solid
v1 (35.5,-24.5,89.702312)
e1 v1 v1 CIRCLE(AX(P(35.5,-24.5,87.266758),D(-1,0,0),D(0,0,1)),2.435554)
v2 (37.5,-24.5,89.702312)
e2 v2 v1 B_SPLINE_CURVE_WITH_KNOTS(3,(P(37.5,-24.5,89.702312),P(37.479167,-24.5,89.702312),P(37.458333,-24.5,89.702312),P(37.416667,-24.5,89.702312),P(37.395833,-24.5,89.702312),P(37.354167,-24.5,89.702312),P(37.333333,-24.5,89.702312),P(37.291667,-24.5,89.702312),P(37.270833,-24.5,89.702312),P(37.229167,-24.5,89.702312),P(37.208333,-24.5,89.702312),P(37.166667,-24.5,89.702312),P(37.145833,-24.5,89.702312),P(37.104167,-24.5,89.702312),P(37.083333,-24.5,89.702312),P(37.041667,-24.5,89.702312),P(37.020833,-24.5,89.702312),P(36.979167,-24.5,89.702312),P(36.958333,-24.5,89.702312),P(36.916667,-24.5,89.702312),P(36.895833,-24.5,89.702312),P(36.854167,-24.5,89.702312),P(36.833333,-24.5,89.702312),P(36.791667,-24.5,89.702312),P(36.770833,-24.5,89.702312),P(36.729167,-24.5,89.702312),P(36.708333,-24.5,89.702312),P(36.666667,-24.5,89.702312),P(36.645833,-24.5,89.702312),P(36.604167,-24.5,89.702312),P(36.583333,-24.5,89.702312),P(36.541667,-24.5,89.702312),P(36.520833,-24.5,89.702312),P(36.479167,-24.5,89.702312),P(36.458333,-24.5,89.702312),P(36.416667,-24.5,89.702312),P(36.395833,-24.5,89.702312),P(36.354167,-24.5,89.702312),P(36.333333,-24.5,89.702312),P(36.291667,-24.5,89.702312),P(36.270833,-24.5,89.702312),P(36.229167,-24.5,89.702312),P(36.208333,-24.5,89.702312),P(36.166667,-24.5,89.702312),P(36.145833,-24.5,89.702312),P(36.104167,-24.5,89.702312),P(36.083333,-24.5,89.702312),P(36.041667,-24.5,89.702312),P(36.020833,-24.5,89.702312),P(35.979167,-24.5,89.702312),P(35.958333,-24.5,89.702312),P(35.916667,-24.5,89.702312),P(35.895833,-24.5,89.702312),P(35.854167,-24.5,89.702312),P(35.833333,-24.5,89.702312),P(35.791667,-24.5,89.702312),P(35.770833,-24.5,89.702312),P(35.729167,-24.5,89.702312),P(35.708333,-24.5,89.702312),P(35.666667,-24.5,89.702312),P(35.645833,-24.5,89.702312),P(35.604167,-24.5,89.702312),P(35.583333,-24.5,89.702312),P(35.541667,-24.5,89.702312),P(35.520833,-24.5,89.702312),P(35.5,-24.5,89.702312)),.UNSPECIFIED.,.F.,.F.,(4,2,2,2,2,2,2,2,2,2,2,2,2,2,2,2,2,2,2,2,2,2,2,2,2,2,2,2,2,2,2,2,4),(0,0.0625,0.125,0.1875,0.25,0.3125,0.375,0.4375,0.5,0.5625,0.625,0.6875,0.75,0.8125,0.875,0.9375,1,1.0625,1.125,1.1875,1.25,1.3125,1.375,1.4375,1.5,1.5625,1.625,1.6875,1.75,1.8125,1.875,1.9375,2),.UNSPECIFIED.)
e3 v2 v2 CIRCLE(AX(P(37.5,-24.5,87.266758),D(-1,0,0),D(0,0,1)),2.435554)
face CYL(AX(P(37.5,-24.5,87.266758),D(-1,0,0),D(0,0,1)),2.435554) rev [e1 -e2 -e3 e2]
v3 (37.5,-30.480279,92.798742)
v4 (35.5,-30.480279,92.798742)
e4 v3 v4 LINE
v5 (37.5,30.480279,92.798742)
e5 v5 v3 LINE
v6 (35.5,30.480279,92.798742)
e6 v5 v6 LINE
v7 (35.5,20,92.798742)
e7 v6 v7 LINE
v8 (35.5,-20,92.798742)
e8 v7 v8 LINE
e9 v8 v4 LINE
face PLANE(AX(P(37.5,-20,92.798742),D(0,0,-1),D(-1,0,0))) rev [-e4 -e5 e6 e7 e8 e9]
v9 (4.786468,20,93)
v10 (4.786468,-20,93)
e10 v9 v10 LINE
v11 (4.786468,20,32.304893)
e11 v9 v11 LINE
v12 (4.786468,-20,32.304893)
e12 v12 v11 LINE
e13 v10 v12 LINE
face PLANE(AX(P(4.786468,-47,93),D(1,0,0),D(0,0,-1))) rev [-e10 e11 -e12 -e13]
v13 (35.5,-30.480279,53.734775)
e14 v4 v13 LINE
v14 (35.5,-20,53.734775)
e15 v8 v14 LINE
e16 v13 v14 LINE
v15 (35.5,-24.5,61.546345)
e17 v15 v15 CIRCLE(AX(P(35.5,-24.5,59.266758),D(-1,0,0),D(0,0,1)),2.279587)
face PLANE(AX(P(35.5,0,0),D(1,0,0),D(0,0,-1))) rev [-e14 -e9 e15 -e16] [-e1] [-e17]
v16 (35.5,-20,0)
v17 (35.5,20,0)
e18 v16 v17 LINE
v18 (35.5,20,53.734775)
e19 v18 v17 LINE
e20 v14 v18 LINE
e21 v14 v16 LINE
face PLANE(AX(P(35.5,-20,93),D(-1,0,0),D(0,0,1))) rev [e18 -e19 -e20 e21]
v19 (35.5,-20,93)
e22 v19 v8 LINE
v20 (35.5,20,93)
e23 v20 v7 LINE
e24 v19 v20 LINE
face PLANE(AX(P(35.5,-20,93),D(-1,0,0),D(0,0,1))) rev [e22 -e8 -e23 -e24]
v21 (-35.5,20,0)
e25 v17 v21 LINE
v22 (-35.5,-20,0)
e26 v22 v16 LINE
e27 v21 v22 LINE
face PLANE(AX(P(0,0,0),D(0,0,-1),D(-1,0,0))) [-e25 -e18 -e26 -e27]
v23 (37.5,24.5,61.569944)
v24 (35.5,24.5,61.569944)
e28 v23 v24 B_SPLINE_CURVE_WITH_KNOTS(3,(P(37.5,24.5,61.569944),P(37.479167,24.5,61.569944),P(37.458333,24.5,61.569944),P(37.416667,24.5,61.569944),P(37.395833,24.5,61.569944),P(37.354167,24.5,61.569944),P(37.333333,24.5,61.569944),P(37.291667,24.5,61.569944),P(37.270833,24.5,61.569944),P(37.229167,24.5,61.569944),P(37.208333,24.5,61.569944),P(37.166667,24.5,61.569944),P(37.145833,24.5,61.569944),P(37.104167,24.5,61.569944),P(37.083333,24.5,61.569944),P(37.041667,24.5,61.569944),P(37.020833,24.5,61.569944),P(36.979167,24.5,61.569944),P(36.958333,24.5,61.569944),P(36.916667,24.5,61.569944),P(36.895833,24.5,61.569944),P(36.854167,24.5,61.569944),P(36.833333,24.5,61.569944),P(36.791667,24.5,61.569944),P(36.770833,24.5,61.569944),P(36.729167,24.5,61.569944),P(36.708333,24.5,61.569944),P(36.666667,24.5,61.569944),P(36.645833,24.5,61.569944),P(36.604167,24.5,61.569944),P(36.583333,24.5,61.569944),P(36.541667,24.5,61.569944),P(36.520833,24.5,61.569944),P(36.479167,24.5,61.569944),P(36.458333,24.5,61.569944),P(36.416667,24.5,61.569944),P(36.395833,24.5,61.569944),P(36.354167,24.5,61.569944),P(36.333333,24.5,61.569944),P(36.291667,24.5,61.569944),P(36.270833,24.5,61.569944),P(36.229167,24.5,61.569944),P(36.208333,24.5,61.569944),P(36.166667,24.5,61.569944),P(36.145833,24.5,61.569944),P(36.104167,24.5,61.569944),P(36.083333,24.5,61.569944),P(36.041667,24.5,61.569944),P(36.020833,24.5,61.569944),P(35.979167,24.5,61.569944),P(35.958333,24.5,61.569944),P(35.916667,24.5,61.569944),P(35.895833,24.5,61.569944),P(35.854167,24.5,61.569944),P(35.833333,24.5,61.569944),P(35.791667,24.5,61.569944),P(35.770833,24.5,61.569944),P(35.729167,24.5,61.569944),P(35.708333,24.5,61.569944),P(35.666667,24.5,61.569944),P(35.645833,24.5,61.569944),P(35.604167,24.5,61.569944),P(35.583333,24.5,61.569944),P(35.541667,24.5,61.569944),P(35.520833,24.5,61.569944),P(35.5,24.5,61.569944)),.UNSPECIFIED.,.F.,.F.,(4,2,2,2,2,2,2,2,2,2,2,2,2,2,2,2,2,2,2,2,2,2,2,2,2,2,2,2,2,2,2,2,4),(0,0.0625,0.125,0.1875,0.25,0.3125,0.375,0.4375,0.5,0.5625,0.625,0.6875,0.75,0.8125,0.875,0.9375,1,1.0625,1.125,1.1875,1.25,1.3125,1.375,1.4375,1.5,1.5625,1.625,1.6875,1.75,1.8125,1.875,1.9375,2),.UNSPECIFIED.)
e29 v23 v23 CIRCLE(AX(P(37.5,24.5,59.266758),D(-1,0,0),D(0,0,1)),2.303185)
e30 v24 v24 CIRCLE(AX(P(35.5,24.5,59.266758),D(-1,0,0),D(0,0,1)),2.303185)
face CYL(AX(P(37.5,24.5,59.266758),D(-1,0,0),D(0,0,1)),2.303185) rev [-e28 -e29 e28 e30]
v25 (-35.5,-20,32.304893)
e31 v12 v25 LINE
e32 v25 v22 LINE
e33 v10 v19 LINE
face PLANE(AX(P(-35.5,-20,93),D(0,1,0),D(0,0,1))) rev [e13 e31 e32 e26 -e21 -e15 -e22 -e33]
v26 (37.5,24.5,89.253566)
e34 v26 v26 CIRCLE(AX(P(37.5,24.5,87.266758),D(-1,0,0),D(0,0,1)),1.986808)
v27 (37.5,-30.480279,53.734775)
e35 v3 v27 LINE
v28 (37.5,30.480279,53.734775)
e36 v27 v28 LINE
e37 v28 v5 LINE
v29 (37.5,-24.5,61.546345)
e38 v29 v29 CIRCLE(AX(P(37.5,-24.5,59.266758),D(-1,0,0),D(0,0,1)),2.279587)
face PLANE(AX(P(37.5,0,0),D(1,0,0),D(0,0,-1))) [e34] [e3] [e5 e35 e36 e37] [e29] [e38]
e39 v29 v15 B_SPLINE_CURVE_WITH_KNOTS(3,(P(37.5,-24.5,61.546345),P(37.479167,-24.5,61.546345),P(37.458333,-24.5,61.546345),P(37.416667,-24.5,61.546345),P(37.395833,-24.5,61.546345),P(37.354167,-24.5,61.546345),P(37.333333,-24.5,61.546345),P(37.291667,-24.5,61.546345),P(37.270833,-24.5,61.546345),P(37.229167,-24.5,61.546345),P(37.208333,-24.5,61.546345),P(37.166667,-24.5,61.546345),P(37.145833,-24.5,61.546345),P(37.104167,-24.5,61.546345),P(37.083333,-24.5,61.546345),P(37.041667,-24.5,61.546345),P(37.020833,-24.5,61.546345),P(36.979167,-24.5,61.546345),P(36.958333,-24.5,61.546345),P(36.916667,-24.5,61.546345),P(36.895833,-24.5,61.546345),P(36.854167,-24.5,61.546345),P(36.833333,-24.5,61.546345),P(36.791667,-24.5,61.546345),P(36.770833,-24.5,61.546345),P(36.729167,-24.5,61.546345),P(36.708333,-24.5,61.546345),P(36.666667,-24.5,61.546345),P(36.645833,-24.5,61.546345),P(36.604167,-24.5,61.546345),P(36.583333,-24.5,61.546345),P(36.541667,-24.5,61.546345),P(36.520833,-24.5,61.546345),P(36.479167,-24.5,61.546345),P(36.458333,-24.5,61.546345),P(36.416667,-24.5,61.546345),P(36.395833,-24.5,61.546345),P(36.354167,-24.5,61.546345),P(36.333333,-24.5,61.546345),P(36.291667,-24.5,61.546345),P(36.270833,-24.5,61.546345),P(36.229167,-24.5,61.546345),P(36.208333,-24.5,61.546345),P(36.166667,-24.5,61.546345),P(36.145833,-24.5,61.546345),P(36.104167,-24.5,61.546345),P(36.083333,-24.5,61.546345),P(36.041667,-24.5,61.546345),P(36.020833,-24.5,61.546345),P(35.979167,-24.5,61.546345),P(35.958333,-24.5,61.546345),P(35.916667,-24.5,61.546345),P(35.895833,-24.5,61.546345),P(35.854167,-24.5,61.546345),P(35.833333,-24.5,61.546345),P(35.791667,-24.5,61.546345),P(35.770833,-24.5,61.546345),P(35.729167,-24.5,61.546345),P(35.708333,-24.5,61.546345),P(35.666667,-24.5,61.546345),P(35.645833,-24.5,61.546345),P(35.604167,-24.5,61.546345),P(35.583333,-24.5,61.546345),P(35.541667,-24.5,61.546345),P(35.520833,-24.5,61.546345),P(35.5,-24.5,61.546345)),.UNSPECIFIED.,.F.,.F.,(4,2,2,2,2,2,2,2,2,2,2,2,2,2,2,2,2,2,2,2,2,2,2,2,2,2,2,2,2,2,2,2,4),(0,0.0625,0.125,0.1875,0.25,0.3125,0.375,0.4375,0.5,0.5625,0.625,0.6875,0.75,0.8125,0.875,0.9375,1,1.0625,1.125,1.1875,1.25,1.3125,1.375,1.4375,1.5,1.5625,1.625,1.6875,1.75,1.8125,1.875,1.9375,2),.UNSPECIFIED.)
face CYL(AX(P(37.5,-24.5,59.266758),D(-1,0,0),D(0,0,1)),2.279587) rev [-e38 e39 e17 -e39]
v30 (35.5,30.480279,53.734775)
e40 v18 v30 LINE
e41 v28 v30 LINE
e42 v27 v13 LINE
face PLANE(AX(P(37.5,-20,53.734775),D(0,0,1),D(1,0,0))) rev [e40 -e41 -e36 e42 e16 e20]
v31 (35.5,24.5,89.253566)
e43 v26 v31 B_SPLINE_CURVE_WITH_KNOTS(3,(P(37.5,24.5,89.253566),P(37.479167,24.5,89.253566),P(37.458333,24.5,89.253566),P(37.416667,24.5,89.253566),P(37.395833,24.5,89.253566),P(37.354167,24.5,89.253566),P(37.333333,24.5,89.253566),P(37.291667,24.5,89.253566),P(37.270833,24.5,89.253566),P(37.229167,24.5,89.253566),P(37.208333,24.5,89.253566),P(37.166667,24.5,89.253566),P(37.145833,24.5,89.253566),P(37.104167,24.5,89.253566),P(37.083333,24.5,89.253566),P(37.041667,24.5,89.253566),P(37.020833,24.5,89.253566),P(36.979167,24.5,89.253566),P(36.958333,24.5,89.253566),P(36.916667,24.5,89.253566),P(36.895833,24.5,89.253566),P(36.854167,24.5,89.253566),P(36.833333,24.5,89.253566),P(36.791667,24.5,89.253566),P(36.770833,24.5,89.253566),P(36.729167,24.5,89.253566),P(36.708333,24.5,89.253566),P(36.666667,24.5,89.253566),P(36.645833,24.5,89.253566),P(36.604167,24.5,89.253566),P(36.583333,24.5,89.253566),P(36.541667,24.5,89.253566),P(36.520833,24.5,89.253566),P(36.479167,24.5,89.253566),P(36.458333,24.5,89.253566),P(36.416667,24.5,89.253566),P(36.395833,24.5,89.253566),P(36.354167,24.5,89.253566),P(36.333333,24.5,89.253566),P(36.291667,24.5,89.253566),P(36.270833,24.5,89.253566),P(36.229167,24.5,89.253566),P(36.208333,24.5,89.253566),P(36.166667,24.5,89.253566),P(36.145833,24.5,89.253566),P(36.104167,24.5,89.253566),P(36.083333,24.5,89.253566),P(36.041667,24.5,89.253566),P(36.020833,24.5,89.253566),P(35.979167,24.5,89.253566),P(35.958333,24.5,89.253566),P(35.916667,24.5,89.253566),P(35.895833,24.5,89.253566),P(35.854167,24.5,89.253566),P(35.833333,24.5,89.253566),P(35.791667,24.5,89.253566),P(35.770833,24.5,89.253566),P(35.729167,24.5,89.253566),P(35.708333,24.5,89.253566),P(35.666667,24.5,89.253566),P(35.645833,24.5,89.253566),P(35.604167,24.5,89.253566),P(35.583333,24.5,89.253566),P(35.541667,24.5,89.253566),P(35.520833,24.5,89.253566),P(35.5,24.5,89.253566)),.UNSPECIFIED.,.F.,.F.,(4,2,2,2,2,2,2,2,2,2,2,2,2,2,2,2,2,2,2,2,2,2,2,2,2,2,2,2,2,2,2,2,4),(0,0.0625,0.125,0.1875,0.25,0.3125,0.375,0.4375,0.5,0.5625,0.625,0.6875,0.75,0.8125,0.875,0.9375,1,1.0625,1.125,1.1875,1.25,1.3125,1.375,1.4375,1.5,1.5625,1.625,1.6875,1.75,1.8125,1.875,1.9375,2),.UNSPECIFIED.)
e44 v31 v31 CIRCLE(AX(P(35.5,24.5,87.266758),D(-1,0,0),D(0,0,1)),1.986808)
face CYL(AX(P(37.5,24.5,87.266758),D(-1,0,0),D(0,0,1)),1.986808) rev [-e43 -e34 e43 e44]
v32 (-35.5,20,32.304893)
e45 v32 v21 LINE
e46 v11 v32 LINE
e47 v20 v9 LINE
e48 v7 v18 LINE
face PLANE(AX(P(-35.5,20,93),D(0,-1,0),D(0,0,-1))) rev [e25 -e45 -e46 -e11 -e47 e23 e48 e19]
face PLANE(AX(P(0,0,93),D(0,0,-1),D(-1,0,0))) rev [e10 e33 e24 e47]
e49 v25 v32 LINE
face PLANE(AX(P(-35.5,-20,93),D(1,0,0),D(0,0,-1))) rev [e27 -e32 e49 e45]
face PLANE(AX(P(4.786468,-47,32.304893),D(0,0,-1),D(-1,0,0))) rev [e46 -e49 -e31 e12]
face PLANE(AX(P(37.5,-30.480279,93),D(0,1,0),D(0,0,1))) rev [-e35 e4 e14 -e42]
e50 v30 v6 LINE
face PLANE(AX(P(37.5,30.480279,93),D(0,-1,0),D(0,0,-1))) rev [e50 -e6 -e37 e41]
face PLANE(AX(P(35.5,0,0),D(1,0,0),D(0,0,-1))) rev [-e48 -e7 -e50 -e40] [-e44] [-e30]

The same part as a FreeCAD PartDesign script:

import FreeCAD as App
import Part
import Sketcher

V = App.Vector

doc = App.newDocument("Part")
body = doc.addObject("PartDesign::Body", "Body")

sketch1 = doc.addObject("Sketcher::SketchObject", "Sketch")
body.addObject(sketch1)
sketch1.AttachmentSupport = (doc.XY_Plane, [""])
sketch1.MapMode = "FlatFace"
sketch1.addGeometry(Part.LineSegment(V(-36, 20, 0), V(-36, -20, 0)), False)
sketch1.addGeometry(Part.LineSegment(V(-36, -20, 0), V(36, -20, 0)), False)
sketch1.addGeometry(Part.LineSegment(V(36, -20, 0), V(36, 20, 0)), False)
sketch1.addGeometry(Part.LineSegment(V(36, 20, 0), V(-36, 20, 0)), False)
sketch1.addConstraint(Sketcher.Constraint("Coincident", 0, 2, 1, 1))
sketch1.addConstraint(Sketcher.Constraint("Coincident", 1, 2, 2, 1))
sketch1.addConstraint(Sketcher.Constraint("Coincident", 2, 2, 3, 1))
sketch1.addConstraint(Sketcher.Constraint("Coincident", 3, 2, 0, 1))
sketch1.addConstraint(Sketcher.Constraint("Vertical", 0))
sketch1.addConstraint(Sketcher.Constraint("Horizontal", 1))
sketch1.addConstraint(Sketcher.Constraint("Vertical", 2))
sketch1.addConstraint(Sketcher.Constraint("Horizontal", 3))
sketch1.addConstraint(Sketcher.Constraint("Symmetric", 0, 2, 2, 2, -1, 1))
sketch1.addConstraint(Sketcher.Constraint("DistanceX", 1, 1, 1, 2, 71.0))
sketch1.addConstraint(Sketcher.Constraint("DistanceY", 0, 2, 0, 1, 40.0))
pad1 = doc.addObject("PartDesign::Pad", "Pad")
body.addObject(pad1)
pad1.Profile = sketch1
pad1.Length = 93

sketch2 = doc.addObject("Sketcher::SketchObject", "Sketch001")
body.addObject(sketch2)
sketch2.AttachmentSupport = (doc.YZ_Plane, [""])
sketch2.MapMode = "FlatFace"
sketch2.AttachmentOffset = App.Placement(V(0, 0, 35.5), App.Rotation())
sketch2.addGeometry(Part.LineSegment(V(30.5, 92.8, 0), V(-30.5, 92.8, 0)), False)
sketch2.addGeometry(Part.LineSegment(V(-30.5, 92.8, 0), V(-30.5, 53.7, 0)), False)
sketch2.addGeometry(Part.LineSegment(V(-30.5, 53.7, 0), V(30.5, 53.7, 0)), False)
sketch2.addGeometry(Part.LineSegment(V(30.5, 53.7, 0), V(30.5, 92.8, 0)), False)
sketch2.addGeometry(Part.Circle(V(-24.5, 87.3, 0), V(0, 0, 1), 2.4), False)
sketch2.addGeometry(Part.Circle(V(-24.5, 59.3, 0), V(0, 0, 1), 2.3), False)
sketch2.addGeometry(Part.Circle(V(24.5, 87.3, 0), V(0, 0, 1), 2), False)
sketch2.addGeometry(Part.Circle(V(24.5, 59.3, 0), V(0, 0, 1), 2.3), False)
sketch2.addConstraint(Sketcher.Constraint("Coincident", 0, 2, 1, 1))
sketch2.addConstraint(Sketcher.Constraint("Coincident", 1, 2, 2, 1))
sketch2.addConstraint(Sketcher.Constraint("Coincident", 2, 2, 3, 1))
sketch2.addConstraint(Sketcher.Constraint("Coincident", 3, 2, 0, 1))
sketch2.addConstraint(Sketcher.Constraint("Horizontal", 0))
sketch2.addConstraint(Sketcher.Constraint("Vertical", 1))
sketch2.addConstraint(Sketcher.Constraint("Horizontal", 2))
sketch2.addConstraint(Sketcher.Constraint("Vertical", 3))
sketch2.addConstraint(Sketcher.Constraint("Symmetric", 4, 3, 6, 3, -2))
sketch2.addConstraint(Sketcher.Constraint("Symmetric", 5, 3, 7, 3, -2))
sketch2.addConstraint(Sketcher.Constraint("Vertical", 4, 3, 5, 3))
sketch2.addConstraint(Sketcher.Constraint("DistanceY", 5, 3, 4, 3, 28.0))
sketch2.addConstraint(Sketcher.Constraint("DistanceX", 4, 3, 6, 3, 49.0))
sketch2.addConstraint(Sketcher.Constraint("Diameter", 7, 4.606371))
sketch2.addConstraint(Sketcher.Constraint("Diameter", 4, 4.871107))
sketch2.addConstraint(Sketcher.Constraint("Diameter", 5, 4.559173))
sketch2.addConstraint(Sketcher.Constraint("Diameter", 6, 3.973615))
sketch2.addConstraint(Sketcher.Constraint("DistanceX", 0, 2, 0, 1, 60.960557))
sketch2.addConstraint(Sketcher.Constraint("DistanceY", 1, 2, 1, 1, 39.063966))
sketch2.addConstraint(Sketcher.Constraint("DistanceY", -1, 1, 4, 3, 87.266758))
sketch2.addConstraint(Sketcher.Constraint("DistanceX", 0, 2, -1, 1, 30.480279))
sketch2.addConstraint(Sketcher.Constraint("DistanceY", -1, 1, 0, 2, 92.798742))
pad2 = doc.addObject("PartDesign::Pad", "Pad001")
body.addObject(pad2)
pad2.Profile = sketch2
pad2.Length = 2

sketch3 = doc.addObject("Sketcher::SketchObject", "Sketch002")
body.addObject(sketch3)
sketch3.AttachmentSupport = (doc.XZ_Plane, [""])
sketch3.MapMode = "FlatFace"
sketch3.AttachmentOffset = App.Placement(V(0, 0, -20), App.Rotation())
sketch3.addGeometry(Part.LineSegment(V(5, 93, 0), V(5, 32, 0)), False)
sketch3.addGeometry(Part.LineSegment(V(5, 32, 0), V(-36, 32, 0)), False)
sketch3.addGeometry(Part.LineSegment(V(-36, 32, 0), V(-48, 35, 0)), False)
sketch3.addGeometry(Part.LineSegment(V(-48, 35, 0), V(-56, 69, 0)), False)
sketch3.addGeometry(Part.LineSegment(V(-56, 69, 0), V(-52, 91, 0)), False)
sketch3.addGeometry(Part.LineSegment(V(-52, 91, 0), V(-40, 97, 0)), False)
sketch3.addGeometry(Part.LineSegment(V(-40, 97, 0), V(5, 93, 0)), False)
sketch3.addConstraint(Sketcher.Constraint("Coincident", 0, 2, 1, 1))
sketch3.addConstraint(Sketcher.Constraint("Coincident", 1, 2, 2, 1))
sketch3.addConstraint(Sketcher.Constraint("Coincident", 2, 2, 3, 1))
sketch3.addConstraint(Sketcher.Constraint("Coincident", 3, 2, 4, 1))
sketch3.addConstraint(Sketcher.Constraint("Coincident", 4, 2, 5, 1))
sketch3.addConstraint(Sketcher.Constraint("Coincident", 5, 2, 6, 1))
sketch3.addConstraint(Sketcher.Constraint("Coincident", 6, 2, 0, 1))
sketch3.addConstraint(Sketcher.Constraint("Vertical", 0))
sketch3.addConstraint(Sketcher.Constraint("Horizontal", 1))
sketch3.addConstraint(Sketcher.Constraint("Perpendicular", 2, 4))
sketch3.addConstraint(Sketcher.Constraint("DistanceY", -1, 1, 6, 2, 93.0))
sketch3.addConstraint(Sketcher.Constraint("DistanceX", 1, 2, -1, 1, 35.5))
sketch3.addConstraint(Sketcher.Constraint("Distance", 3, 35.51243))
sketch3.addConstraint(Sketcher.Constraint("Distance", 5, 13.926618))
sketch3.addConstraint(Sketcher.Constraint("Distance", 6, 44.690151))
sketch3.addConstraint(Sketcher.Constraint("DistanceX", 1, 2, 1, 1, 40.286468))
sketch3.addConstraint(Sketcher.Constraint("DistanceY", 0, 2, 0, 1, 60.695107))
sketch3.addConstraint(Sketcher.Constraint("DistanceY", -1, 1, 2, 2, 34.91625))
sketch3.addConstraint(Sketcher.Constraint("DistanceX", 3, 2, -1, 1, 56.319288))
sketch3.addConstraint(Sketcher.Constraint("DistanceY", -1, 1, 3, 2, 69.473209))
sketch3.addConstraint(Sketcher.Constraint("DistanceX", 4, 2, -1, 1, 51.935452))
pocket1 = doc.addObject("PartDesign::Pocket", "Pocket")
body.addObject(pocket1)
pocket1.Profile = sketch3
pocket1.Length = 67
pocket1.Reversed = True

doc.recompute()
